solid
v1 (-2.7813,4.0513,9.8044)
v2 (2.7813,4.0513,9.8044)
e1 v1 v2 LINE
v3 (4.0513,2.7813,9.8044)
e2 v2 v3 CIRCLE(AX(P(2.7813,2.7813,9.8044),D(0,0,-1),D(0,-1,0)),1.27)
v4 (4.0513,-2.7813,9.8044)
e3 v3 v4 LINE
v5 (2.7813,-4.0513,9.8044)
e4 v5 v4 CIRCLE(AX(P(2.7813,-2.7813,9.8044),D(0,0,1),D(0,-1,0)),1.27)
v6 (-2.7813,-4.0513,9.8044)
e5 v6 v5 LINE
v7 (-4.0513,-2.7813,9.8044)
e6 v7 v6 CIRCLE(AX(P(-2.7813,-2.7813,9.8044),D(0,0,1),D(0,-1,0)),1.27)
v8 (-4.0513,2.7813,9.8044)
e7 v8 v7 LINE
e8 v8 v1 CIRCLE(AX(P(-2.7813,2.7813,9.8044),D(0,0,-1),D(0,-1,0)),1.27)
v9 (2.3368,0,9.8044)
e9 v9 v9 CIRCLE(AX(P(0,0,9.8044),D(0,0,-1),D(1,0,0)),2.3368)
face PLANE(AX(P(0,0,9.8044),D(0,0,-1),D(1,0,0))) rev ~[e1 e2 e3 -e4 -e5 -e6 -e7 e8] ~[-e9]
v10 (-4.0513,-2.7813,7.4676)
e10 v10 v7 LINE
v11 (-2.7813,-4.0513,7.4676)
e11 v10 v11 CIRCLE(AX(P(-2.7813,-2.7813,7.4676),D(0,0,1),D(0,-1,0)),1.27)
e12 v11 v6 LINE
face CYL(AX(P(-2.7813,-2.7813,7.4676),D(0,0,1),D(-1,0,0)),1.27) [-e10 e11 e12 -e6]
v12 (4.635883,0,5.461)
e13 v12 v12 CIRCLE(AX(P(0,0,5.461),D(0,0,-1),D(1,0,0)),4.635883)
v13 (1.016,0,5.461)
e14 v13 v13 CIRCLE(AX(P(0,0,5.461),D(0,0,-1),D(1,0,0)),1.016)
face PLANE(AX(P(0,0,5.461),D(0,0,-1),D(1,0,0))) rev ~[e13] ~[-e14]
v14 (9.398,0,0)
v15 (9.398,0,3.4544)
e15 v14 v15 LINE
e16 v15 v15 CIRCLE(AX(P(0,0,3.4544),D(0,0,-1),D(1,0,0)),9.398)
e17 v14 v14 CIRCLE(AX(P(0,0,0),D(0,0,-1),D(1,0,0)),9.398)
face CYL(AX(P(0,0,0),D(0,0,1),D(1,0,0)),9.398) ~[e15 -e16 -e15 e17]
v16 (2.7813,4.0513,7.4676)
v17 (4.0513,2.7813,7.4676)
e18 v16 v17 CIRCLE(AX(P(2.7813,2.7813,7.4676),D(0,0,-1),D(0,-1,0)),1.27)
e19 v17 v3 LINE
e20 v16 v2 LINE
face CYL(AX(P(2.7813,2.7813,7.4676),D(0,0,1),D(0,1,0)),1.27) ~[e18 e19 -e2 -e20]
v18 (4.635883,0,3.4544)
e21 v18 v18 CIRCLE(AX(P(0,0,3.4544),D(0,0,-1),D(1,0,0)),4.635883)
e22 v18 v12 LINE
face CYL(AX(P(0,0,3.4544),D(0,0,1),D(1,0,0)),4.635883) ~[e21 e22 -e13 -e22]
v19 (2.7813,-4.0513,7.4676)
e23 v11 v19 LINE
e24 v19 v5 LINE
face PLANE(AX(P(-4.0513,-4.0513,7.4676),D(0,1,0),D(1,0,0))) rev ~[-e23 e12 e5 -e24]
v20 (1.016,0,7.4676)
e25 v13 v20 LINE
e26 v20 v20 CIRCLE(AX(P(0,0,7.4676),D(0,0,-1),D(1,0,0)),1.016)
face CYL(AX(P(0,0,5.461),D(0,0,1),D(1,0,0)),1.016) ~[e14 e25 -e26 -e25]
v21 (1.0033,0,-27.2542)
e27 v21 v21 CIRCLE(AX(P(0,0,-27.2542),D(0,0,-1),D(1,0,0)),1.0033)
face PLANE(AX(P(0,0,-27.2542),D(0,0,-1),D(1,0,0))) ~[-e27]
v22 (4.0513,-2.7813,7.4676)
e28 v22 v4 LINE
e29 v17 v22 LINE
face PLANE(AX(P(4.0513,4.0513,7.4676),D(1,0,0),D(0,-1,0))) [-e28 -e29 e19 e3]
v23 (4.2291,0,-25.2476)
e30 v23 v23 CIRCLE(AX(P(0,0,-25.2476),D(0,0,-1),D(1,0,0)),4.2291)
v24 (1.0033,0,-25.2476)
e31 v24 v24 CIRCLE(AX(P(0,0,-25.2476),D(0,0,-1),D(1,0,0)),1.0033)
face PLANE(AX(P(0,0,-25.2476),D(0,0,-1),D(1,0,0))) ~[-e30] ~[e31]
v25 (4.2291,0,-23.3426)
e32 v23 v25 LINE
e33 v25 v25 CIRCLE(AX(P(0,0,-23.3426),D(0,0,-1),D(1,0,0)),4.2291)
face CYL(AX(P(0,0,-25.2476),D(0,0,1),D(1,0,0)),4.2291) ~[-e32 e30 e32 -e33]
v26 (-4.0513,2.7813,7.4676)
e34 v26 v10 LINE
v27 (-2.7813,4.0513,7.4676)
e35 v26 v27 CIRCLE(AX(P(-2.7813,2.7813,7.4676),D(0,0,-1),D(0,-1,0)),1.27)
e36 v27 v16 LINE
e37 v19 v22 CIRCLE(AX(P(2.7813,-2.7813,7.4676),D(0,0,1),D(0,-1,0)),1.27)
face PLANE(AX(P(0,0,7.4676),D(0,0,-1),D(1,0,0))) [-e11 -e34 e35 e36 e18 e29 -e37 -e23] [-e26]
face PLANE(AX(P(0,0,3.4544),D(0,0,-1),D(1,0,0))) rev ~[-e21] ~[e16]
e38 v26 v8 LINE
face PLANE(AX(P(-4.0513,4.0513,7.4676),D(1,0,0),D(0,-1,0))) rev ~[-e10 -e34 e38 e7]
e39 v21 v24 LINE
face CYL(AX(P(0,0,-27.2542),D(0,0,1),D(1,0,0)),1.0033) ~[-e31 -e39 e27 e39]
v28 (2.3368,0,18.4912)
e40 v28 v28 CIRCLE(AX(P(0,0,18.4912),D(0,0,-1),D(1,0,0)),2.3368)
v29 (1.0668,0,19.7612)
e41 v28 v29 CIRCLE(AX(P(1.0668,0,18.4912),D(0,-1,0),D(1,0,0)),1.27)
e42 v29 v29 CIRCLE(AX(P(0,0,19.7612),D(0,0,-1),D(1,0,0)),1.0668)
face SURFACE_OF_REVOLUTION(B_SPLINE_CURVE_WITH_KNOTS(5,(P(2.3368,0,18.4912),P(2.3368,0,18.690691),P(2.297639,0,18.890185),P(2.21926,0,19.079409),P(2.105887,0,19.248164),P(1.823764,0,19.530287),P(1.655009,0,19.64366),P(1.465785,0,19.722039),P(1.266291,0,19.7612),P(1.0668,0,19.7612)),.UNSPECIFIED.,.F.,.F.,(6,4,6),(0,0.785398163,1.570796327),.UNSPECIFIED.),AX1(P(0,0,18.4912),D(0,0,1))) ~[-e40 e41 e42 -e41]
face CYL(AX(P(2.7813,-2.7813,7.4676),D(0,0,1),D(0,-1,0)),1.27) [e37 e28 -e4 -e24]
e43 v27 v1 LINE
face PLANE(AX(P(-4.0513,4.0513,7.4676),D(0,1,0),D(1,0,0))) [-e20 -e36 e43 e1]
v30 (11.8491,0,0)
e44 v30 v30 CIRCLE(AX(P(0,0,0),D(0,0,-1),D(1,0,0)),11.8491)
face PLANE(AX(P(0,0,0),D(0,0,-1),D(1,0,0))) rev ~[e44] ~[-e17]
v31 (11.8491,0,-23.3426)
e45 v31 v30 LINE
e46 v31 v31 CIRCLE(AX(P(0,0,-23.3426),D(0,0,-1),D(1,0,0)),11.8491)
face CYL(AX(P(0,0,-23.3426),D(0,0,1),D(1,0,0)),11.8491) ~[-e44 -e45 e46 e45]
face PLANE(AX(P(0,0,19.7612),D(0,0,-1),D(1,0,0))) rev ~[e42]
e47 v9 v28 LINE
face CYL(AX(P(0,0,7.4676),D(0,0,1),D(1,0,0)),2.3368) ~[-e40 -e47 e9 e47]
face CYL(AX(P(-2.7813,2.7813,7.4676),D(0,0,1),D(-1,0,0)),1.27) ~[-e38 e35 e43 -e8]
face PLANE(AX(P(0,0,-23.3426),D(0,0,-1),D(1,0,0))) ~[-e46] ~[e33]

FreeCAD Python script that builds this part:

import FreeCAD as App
import Part
import Sketcher
Q = App.Units.Quantity


def edges_at(feature, points):
    """Names of the edges that pass closest to the given points."""
    edges = feature.Shape.Edges
    near = lambda p: min(range(len(edges)), key=lambda i: edges[i].distToShape(Part.Vertex(*p))[0])
    return sorted({f"Edge{near(p) + 1}" for p in points})

doc = App.newDocument("Part")
params = doc.addObject("Spreadsheet::Sheet", "Params")
for row, (alias, value) in enumerate([
    ("sketch1_width", "0.3 in"),
    ("sketch1_width2", "0.052 in"),
    ("sketch1_width3", "0.092 in"),
    ("sketch1_width4", "0.127 in"),
    ("sketch1_height", "0.919 in"),
    ("revolution_angle", "360 deg"),
    ("sketch2_diameter", "0.184 in"),
    ("sketch2_width", "0.319 in"),
    ("pad1_length", "0.092 in"),
    ("fillet_radius", "0.05 in"),
    ("fillet2_radius", "0.05 in"),
], start=1):
    params.set(f"A{row}", alias)
    params.set(f"B{row}", "=" + value)
    params.setAlias(f"B{row}", alias)

body = doc.addObject("PartDesign::Body", "Body")

# Sketch on XZ plane
sketch1 = body.newObject("Sketcher::SketchObject", "Sketch")
sketch1.AttachmentSupport = (doc.getObject("XZ_Plane"), [""])
sketch1.MapMode = "FlatFace"
sketch1.addGeometry(Part.LineSegment(App.Vector(11.8, -23.3, 0), App.Vector(11.8, 0, 0)), False)
sketch1.addGeometry(Part.LineSegment(App.Vector(11.8, 0, 0), App.Vector(9.4, 0, 0)), False)
sketch1.addGeometry(Part.LineSegment(App.Vector(9.4, 0, 0), App.Vector(9.4, 3.5, 0)), False)
sketch1.addGeometry(Part.LineSegment(App.Vector(9.4, 3.5, 0), App.Vector(4.6, 3.5, 0)), False)
sketch1.addGeometry(Part.LineSegment(App.Vector(4.6, 3.5, 0), App.Vector(4.6, 5.5, 0)), False)
sketch1.addGeometry(Part.LineSegment(App.Vector(4.6, 5.5, 0), App.Vector(1, 5.5, 0)), False)
sketch1.addGeometry(Part.LineSegment(App.Vector(1, 5.5, 0), App.Vector(1, 7.5, 0)), False)
sketch1.addGeometry(Part.LineSegment(App.Vector(1, 7.5, 0), App.Vector(2.3, 7.5, 0)), False)
sketch1.addGeometry(Part.LineSegment(App.Vector(2.3, 7.5, 0), App.Vector(2.3, 19.8, 0)), False)
sketch1.addGeometry(Part.LineSegment(App.Vector(2.3, 19.8, 0), App.Vector(0, 19.8, 0)), False)
sketch1.addGeometry(Part.LineSegment(App.Vector(0, 19.8, 0), App.Vector(0, -27.3, 0)), False)
sketch1.addGeometry(Part.LineSegment(App.Vector(0, -27.3, 0), App.Vector(1, -27.3, 0)), False)
sketch1.addGeometry(Part.LineSegment(App.Vector(1, -27.3, 0), App.Vector(1, -25.2, 0)), False)
sketch1.addGeometry(Part.LineSegment(App.Vector(1, -25.2, 0), App.Vector(4.2, -25.2, 0)), False)
sketch1.addGeometry(Part.LineSegment(App.Vector(4.2, -25.2, 0), App.Vector(4.2, -23.3, 0)), False)
sketch1.addGeometry(Part.LineSegment(App.Vector(4.2, -23.3, 0), App.Vector(11.8, -23.3, 0)), False)
sketch1.addConstraint(Sketcher.Constraint("Coincident", 0, 2, 1, 1))
sketch1.addConstraint(Sketcher.Constraint("Coincident", 1, 2, 2, 1))
sketch1.addConstraint(Sketcher.Constraint("Coincident", 2, 2, 3, 1))
sketch1.addConstraint(Sketcher.Constraint("Coincident", 3, 2, 4, 1))
sketch1.addConstraint(Sketcher.Constraint("Coincident", 4, 2, 5, 1))
sketch1.addConstraint(Sketcher.Constraint("Coincident", 5, 2, 6, 1))
sketch1.addConstraint(Sketcher.Constraint("Coincident", 6, 2, 7, 1))
sketch1.addConstraint(Sketcher.Constraint("Coincident", 7, 2, 8, 1))
sketch1.addConstraint(Sketcher.Constraint("Coincident", 8, 2, 9, 1))
sketch1.addConstraint(Sketcher.Constraint("Coincident", 9, 2, 10, 1))
sketch1.addConstraint(Sketcher.Constraint("Coincident", 10, 2, 11, 1))
sketch1.addConstraint(Sketcher.Constraint("Coincident", 11, 2, 12, 1))
sketch1.addConstraint(Sketcher.Constraint("Coincident", 12, 2, 13, 1))
sketch1.addConstraint(Sketcher.Constraint("Coincident", 13, 2, 14, 1))
sketch1.addConstraint(Sketcher.Constraint("Coincident", 14, 2, 15, 1))
sketch1.addConstraint(Sketcher.Constraint("Coincident", 15, 2, 0, 1))
sketch1.addConstraint(Sketcher.Constraint("Vertical", 0))
sketch1.addConstraint(Sketcher.Constraint("Horizontal", 1))
sketch1.addConstraint(Sketcher.Constraint("Vertical", 2))
sketch1.addConstraint(Sketcher.Constraint("Horizontal", 3))
sketch1.addConstraint(Sketcher.Constraint("Vertical", 4))
sketch1.addConstraint(Sketcher.Constraint("Horizontal", 5))
sketch1.addConstraint(Sketcher.Constraint("Vertical", 6))
sketch1.addConstraint(Sketcher.Constraint("Horizontal", 7))
sketch1.addConstraint(Sketcher.Constraint("Vertical", 8))
sketch1.addConstraint(Sketcher.Constraint("Horizontal", 9))
sketch1.addConstraint(Sketcher.Constraint("Vertical", 10))
sketch1.addConstraint(Sketcher.Constraint("Horizontal", 11))
sketch1.addConstraint(Sketcher.Constraint("Vertical", 12))
sketch1.addConstraint(Sketcher.Constraint("Horizontal", 13))
sketch1.addConstraint(Sketcher.Constraint("Vertical", 14))
sketch1.addConstraint(Sketcher.Constraint("Horizontal", 15))
sketch1.addConstraint(Sketcher.Constraint("PointOnObject", 0, 2, -1))
sketch1.addConstraint(Sketcher.Constraint("PointOnObject", 9, 2, -2))
sketch1.addConstraint(Sketcher.Constraint("Equal", 4, 6))
sketch1.addConstraint(Sketcher.Constraint("Equal", 6, 12))
sketch1.addConstraint(Sketcher.Constraint("DistanceX", 15, 1, 15, 2, Q("0.3 in")))
sketch1.addConstraint(Sketcher.Constraint("DistanceX", 7, 1, 7, 2, Q("0.052 in")))
sketch1.addConstraint(Sketcher.Constraint("DistanceX", 9, 2, 9, 1, Q("0.092 in")))
sketch1.addConstraint(Sketcher.Constraint("DistanceX", 13, 1, 13, 2, Q("0.127 in")))
sketch1.addConstraint(Sketcher.Constraint("DistanceY", 0, 1, 0, 2, Q("0.919 in")))
sketch1.addConstraint(Sketcher.Constraint("DistanceY", 2, 1, 2, 2, Q("0.136 in")))
sketch1.addConstraint(Sketcher.Constraint("DistanceY", 4, 1, 4, 2, Q("0.079 in")))
sketch1.addConstraint(Sketcher.Constraint("DistanceY", 8, 1, 8, 2, Q("0.484 in")))
sketch1.addConstraint(Sketcher.Constraint("DistanceY", 10, 2, 10, 1, Q("1.851 in")))
sketch1.addConstraint(Sketcher.Constraint("DistanceX", -1, 1, 1, 2, Q("0.37 in")))
sketch1.addConstraint(Sketcher.Constraint("DistanceX", 1, 2, 1, 1, Q("0.0965 in")))
sketch1.addConstraint(Sketcher.Constraint("DistanceX", 3, 2, 3, 1, 4.762117))
sketch1.setExpression("Constraints[36]", "Params.sketch1_width")
sketch1.setExpression("Constraints[37]", "Params.sketch1_width2")
sketch1.setExpression("Constraints[38]", "Params.sketch1_width3")
sketch1.setExpression("Constraints[39]", "Params.sketch1_width4")
sketch1.setExpression("Constraints[40]", "Params.sketch1_height")
revolution = body.newObject("PartDesign::Revolution", "Revolution")
revolution.Profile = sketch1
revolution.ReferenceAxis = (sketch1, ["V_Axis"])
revolution.setExpression("Angle", "Params.revolution_angle")

# Sketch on XY plane
sketch2 = body.newObject("Sketcher::SketchObject", "Sketch001")
sketch2.AttachmentSupport = (doc.getObject("XY_Plane"), [""])
sketch2.MapMode = "FlatFace"
sketch2.AttachmentOffset = App.Placement(App.Vector(0, 0, 0.294 * 25.4), App.Rotation())
sketch2.addGeometry(Part.LineSegment(App.Vector(-4.1, -4.1, 0), App.Vector(-4.1, 4.1, 0)), False)
sketch2.addGeometry(Part.LineSegment(App.Vector(-4.1, 4.1, 0), App.Vector(4.1, 4.1, 0)), False)
sketch2.addGeometry(Part.LineSegment(App.Vector(4.1, 4.1, 0), App.Vector(4.1, -4.1, 0)), False)
sketch2.addGeometry(Part.LineSegment(App.Vector(4.1, -4.1, 0), App.Vector(-4.1, -4.1, 0)), False)
sketch2.addGeometry(Part.Circle(App.Vector(0, 0, 0), App.Vector(0, 0, 1), 2.3), False)
sketch2.addConstraint(Sketcher.Constraint("Coincident", 0, 2, 1, 1))
sketch2.addConstraint(Sketcher.Constraint("Coincident", 1, 2, 2, 1))
sketch2.addConstraint(Sketcher.Constraint("Coincident", 2, 2, 3, 1))
sketch2.addConstraint(Sketcher.Constraint("Coincident", 3, 2, 0, 1))
sketch2.addConstraint(Sketcher.Constraint("Vertical", 0))
sketch2.addConstraint(Sketcher.Constraint("Horizontal", 1))
sketch2.addConstraint(Sketcher.Constraint("Vertical", 2))
sketch2.addConstraint(Sketcher.Constraint("Horizontal", 3))
sketch2.addConstraint(Sketcher.Constraint("Coincident", 4, 3, -1, 1))
sketch2.addConstraint(Sketcher.Constraint("Symmetric", 0, 2, 2, 2, -1, 1))
sketch2.addConstraint(Sketcher.Constraint("Equal", 3, 0))
sketch2.addConstraint(Sketcher.Constraint("Diameter", 4, Q("0.184 in")))
sketch2.addConstraint(Sketcher.Constraint("DistanceX", 1, 1, 1, 2, Q("0.319 in")))
sketch2.setExpression("Constraints[11]", "Params.sketch2_diameter")
sketch2.setExpression("Constraints[12]", "Params.sketch2_width")
pad1 = body.newObject("PartDesign::Pad", "Pad")
pad1.Profile = sketch2
pad1.setExpression("Length", "Params.pad1_length")
doc.recompute()

fillet = body.newObject("PartDesign::Fillet", "Fillet")
fillet.Base = (pad1, edges_at(pad1, [
    (4.051, -4.051, 8.636),
    (-4.051, -4.051, 8.636),
    (-4.051, 4.051, 8.636),
    (4.051, 4.051, 8.636),
]))
fillet.setExpression("Radius", "Params.fillet_radius")
doc.recompute()

fillet2 = body.newObject("PartDesign::Fillet", "Fillet001")
fillet2.Base = (fillet, edges_at(fillet, [(-2.337, 0, 19.761)]))
fillet2.setExpression("Radius", "Params.fillet2_radius")

doc.recompute()
